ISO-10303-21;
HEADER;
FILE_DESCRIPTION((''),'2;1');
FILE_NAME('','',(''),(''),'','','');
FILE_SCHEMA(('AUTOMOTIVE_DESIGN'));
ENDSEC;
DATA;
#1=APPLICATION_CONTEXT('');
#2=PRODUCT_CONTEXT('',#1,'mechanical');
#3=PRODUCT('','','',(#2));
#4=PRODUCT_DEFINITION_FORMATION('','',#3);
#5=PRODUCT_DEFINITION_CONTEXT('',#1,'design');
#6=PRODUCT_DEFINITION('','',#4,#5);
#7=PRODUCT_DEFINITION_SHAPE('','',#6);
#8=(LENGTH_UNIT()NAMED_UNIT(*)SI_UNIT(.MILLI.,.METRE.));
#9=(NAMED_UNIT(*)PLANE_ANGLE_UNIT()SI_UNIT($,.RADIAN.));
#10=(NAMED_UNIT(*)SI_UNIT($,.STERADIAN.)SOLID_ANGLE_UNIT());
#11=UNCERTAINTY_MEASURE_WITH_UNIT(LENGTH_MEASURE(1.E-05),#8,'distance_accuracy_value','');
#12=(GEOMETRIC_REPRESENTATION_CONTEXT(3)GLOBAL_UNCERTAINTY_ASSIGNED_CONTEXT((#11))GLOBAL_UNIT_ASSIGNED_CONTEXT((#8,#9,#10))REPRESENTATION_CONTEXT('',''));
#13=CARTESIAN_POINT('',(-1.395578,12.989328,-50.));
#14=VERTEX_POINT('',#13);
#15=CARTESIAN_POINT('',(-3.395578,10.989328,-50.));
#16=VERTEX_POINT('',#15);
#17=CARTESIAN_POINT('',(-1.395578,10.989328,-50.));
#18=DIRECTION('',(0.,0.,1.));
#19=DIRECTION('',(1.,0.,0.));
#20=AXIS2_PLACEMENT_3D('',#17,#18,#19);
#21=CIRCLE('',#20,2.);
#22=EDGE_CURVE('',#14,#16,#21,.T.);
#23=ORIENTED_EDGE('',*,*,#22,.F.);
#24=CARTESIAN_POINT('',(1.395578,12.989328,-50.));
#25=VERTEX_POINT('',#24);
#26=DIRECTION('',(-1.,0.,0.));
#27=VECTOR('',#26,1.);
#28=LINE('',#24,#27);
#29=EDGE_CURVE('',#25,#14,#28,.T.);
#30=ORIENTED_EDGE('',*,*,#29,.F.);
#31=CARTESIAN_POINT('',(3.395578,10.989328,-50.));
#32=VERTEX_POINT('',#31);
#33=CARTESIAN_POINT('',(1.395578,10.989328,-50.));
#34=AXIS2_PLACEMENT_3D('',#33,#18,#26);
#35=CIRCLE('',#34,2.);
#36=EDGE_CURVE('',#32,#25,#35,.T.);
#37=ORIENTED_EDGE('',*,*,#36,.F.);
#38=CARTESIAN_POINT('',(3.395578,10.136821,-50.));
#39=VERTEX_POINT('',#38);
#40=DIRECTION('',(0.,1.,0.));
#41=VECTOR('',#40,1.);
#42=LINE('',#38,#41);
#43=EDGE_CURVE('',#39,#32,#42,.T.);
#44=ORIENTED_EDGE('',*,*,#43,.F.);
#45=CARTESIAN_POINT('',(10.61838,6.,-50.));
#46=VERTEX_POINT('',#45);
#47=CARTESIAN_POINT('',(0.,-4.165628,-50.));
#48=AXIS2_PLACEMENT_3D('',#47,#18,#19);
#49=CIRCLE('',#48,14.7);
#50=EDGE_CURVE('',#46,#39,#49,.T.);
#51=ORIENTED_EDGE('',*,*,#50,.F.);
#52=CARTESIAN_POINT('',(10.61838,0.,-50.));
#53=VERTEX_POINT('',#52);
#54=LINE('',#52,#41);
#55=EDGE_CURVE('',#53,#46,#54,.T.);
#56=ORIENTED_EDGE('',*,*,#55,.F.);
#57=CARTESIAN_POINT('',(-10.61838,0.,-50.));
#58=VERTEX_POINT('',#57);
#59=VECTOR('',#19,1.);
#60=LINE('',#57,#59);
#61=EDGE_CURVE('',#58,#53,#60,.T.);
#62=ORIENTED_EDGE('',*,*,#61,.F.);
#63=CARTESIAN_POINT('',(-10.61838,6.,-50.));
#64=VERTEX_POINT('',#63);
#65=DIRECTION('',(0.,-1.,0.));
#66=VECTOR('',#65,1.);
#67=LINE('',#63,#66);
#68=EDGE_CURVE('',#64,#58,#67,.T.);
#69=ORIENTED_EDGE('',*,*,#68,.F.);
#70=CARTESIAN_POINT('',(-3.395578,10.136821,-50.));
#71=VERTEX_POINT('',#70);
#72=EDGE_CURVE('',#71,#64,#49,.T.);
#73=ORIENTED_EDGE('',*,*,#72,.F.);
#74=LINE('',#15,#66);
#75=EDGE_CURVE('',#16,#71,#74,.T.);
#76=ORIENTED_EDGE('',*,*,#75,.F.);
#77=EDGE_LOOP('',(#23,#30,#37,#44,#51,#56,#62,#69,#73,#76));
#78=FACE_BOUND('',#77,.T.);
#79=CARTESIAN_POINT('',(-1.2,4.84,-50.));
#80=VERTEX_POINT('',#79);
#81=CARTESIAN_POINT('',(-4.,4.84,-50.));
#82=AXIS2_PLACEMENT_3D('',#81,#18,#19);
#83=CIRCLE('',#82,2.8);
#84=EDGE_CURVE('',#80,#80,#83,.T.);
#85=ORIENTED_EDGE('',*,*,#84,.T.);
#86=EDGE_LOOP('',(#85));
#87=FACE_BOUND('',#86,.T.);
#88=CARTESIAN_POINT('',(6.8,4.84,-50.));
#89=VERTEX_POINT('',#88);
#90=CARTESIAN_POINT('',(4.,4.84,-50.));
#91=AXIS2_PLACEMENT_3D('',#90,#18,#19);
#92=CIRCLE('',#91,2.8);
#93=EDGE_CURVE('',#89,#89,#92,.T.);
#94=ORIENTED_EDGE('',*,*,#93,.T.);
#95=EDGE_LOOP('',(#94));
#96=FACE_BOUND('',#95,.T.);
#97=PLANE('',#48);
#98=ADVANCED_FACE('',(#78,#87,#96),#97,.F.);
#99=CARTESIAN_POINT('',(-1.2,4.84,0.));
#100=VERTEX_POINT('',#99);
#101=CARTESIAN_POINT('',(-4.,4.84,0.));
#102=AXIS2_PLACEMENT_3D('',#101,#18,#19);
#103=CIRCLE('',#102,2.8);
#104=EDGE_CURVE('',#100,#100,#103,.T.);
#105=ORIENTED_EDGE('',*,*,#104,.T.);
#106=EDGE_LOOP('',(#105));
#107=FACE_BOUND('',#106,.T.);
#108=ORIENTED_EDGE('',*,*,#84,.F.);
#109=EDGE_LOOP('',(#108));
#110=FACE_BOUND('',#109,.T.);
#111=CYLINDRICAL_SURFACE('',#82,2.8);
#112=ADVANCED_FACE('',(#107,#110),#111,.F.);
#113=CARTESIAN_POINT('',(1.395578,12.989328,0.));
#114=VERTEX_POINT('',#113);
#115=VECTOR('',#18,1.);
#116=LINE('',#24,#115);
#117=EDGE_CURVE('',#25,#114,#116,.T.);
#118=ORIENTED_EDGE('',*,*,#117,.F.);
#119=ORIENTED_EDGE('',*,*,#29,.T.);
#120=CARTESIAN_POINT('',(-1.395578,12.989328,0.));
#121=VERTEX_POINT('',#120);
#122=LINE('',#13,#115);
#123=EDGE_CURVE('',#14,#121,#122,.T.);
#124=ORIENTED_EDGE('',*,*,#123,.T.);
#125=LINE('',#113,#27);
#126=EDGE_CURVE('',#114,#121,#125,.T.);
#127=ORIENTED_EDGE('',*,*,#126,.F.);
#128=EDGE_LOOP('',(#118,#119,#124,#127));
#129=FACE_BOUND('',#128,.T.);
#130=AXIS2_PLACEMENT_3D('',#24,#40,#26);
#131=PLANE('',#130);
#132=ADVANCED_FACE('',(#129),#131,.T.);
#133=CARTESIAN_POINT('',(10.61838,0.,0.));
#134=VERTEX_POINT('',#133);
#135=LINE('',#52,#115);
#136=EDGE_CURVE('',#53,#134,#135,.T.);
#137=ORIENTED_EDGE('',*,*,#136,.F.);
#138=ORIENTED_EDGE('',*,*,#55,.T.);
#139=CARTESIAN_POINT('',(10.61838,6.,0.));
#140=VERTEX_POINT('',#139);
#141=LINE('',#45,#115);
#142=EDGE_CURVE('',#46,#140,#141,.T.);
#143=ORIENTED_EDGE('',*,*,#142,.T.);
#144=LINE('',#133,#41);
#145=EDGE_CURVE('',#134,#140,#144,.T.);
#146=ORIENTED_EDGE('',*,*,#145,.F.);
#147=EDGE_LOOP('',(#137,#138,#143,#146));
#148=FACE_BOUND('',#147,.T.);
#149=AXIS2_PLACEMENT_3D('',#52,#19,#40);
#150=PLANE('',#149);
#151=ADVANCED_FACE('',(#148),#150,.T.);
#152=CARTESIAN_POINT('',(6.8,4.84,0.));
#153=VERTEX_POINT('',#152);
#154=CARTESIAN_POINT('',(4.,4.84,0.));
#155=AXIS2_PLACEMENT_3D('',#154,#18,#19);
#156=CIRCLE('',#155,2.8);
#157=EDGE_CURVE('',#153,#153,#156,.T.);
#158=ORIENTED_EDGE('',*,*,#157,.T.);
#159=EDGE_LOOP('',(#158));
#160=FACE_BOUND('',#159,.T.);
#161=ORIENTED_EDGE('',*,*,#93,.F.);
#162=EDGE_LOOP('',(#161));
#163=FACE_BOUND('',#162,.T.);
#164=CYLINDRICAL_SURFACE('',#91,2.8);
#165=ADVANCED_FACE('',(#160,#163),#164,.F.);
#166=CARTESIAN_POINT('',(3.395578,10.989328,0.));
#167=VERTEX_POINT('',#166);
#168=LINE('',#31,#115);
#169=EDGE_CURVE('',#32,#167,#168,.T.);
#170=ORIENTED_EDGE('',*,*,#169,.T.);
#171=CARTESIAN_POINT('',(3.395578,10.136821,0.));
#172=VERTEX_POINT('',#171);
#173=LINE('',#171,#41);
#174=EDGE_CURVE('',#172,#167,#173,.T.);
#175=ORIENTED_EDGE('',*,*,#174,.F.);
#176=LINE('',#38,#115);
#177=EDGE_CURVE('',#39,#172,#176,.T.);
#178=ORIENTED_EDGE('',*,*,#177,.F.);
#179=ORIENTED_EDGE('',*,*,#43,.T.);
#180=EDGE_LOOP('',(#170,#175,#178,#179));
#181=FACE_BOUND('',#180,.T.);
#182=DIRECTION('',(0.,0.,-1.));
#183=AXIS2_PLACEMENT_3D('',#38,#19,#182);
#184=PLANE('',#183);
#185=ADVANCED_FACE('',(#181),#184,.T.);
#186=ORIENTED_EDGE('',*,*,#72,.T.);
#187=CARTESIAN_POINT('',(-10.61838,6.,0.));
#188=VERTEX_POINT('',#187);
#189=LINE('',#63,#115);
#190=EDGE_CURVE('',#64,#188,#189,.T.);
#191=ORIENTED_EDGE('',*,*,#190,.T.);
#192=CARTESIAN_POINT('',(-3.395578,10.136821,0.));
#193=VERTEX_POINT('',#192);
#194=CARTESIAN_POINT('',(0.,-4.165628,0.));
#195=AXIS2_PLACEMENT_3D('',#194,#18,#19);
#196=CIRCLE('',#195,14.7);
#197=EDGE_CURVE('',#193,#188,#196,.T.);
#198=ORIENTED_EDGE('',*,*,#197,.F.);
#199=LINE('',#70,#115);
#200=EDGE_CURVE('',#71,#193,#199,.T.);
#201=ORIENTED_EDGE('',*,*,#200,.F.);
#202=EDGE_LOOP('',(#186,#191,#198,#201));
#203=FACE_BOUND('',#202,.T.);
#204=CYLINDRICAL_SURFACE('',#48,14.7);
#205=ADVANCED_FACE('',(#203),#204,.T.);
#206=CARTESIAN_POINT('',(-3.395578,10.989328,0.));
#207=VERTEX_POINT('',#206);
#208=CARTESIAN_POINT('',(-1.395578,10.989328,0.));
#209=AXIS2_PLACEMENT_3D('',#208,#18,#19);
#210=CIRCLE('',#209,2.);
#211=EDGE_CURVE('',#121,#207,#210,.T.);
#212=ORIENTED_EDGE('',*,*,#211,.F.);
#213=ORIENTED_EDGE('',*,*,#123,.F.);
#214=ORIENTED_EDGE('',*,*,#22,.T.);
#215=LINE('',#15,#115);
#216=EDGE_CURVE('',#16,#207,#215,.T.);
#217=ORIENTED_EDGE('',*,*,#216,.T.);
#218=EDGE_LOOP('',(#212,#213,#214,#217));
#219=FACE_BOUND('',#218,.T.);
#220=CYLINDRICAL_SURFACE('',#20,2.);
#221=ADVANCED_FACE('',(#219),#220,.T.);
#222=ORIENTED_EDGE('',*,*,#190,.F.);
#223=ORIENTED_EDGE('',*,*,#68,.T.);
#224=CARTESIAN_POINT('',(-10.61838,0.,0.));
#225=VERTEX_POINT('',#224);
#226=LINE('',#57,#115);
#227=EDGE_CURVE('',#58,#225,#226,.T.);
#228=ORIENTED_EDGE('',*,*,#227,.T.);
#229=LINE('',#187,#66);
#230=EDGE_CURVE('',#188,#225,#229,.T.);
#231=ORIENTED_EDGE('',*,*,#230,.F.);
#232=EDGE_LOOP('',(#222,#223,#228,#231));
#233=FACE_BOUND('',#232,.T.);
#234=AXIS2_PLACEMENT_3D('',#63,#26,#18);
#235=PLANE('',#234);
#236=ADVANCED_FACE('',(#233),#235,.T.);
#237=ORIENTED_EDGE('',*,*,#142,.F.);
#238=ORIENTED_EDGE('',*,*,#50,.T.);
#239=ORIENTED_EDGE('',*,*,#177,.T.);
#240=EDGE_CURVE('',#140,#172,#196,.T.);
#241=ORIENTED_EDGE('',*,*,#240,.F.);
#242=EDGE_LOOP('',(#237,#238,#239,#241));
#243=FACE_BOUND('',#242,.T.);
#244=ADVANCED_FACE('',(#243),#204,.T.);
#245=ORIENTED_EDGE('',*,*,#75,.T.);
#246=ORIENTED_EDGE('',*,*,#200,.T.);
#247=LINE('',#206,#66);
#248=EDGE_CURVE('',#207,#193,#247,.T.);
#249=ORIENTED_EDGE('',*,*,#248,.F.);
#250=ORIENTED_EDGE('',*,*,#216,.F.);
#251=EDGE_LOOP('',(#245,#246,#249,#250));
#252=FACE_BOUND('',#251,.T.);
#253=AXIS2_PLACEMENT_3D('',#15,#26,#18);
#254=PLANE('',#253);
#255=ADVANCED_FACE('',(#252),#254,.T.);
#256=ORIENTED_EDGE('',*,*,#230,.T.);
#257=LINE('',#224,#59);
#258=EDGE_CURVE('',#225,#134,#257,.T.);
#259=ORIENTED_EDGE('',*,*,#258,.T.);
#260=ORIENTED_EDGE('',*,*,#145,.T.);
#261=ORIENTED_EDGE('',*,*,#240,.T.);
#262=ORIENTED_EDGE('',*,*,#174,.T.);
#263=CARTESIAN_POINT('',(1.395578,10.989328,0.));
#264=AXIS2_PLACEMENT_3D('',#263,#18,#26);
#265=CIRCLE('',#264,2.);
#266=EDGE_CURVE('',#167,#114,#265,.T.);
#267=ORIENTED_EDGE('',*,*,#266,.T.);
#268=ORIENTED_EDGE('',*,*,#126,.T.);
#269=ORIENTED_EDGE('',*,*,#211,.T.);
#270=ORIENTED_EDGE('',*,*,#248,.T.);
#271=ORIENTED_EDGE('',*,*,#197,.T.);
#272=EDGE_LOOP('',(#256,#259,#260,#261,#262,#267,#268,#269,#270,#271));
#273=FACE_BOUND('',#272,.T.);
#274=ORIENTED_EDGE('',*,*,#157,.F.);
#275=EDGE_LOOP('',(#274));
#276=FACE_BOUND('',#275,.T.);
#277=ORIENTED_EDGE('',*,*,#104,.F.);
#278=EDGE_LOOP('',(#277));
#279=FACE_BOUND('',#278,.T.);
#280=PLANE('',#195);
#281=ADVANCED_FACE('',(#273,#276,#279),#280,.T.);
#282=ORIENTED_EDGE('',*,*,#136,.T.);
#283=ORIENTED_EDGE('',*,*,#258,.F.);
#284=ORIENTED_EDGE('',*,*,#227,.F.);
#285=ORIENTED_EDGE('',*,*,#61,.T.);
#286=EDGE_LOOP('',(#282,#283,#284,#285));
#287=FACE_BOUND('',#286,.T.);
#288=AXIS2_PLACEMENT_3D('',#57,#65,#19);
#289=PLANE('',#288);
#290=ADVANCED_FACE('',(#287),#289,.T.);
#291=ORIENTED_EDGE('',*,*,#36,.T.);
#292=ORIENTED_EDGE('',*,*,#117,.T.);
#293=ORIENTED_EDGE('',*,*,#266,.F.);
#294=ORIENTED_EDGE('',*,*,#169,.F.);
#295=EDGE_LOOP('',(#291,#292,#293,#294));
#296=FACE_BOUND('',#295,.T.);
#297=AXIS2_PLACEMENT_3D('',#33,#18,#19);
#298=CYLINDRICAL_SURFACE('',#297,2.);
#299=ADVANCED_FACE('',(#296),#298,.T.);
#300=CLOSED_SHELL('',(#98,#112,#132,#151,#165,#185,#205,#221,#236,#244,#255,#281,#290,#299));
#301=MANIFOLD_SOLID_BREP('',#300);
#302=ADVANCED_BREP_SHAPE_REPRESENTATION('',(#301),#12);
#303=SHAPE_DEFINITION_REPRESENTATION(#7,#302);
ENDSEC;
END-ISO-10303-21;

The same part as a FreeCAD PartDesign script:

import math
import FreeCAD as App
import Part
import Sketcher

V = App.Vector
Q = App.Units.Quantity

doc = App.newDocument("Part")
body = doc.addObject("PartDesign::Body", "Body")

sketch1 = body.newObject("Sketcher::SketchObject", "Sketch")
sketch1.AttachmentSupport = (doc.getObject("XY_Plane"), [""])
sketch1.MapMode = "FlatFace"
sketch1.addGeometry([
    Part.LineSegment(V(-10.6, 0, 0), V(10.6, 0, 0)),
    Part.LineSegment(V(10.6, 0, 0), V(10.6, 6, 0)),
    Part.ArcOfCircle(Part.Circle(V(0, -4.2, 0), V(0, 0, 1), 14.7), math.radians(44), math.radians(77)),
    Part.LineSegment(V(3.4, 10.1, 0), V(3.4, 11, 0)),
    Part.ArcOfCircle(Part.Circle(V(1.4, 11, 0), V(0, 0, 1), 2), math.radians(0), math.radians(90)),
    Part.LineSegment(V(1.4, 13, 0), V(-1.4, 13, 0)),
    Part.ArcOfCircle(Part.Circle(V(-1.4, 11, 0), V(0, 0, 1), 2), math.radians(90), math.radians(180)),
    Part.LineSegment(V(-3.4, 11, 0), V(-3.4, 10.1, 0)),
    Part.ArcOfCircle(Part.Circle(V(0, -4.2, 0), V(0, 0, 1), 14.7), math.radians(103), math.radians(136)),
    Part.LineSegment(V(-10.6, 6, 0), V(-10.6, 0, 0)),
], False)
sketch1.addConstraint([
    Sketcher.Constraint("Coincident", 0, 2, 1, 1),
    Sketcher.Constraint("Coincident", 1, 2, 2, 1),
    Sketcher.Constraint("Coincident", 2, 2, 3, 1),
    Sketcher.Constraint("Tangent", 3, 2, 4, 1),
    Sketcher.Constraint("Tangent", 4, 2, 5, 1),
    Sketcher.Constraint("Tangent", 5, 2, 6, 1),
    Sketcher.Constraint("Tangent", 6, 2, 7, 1),
    Sketcher.Constraint("Coincident", 7, 2, 8, 1),
    Sketcher.Constraint("Coincident", 8, 2, 9, 1),
    Sketcher.Constraint("Coincident", 9, 2, 0, 1),
    Sketcher.Constraint("Horizontal", 0),
    Sketcher.Constraint("Vertical", 1),
    Sketcher.Constraint("Vertical", 3),
    Sketcher.Constraint("Horizontal", 5),
    Sketcher.Constraint("Vertical", 7),
    Sketcher.Constraint("Vertical", 9),
    Sketcher.Constraint("Coincident", 8, 3, 2, 3),
    Sketcher.Constraint("Equal", 4, 6),
    Sketcher.Constraint("Equal", 2, 8),
    Sketcher.Constraint("Symmetric", 0, 2, 9, 2, -1, 1),
    Sketcher.Constraint("Symmetric", 2, 2, 7, 2, -2),
    Sketcher.Constraint("Radius", 4, Q("2 mm")),
    Sketcher.Constraint("Radius", 2, Q("14.7 mm")),
    Sketcher.Constraint("DistanceY", 1, 1, 1, 2, Q("6 mm")),
    Sketcher.Constraint("DistanceX", 0, 1, 0, 2, Q("21.236761 mm")),
    Sketcher.Constraint("DistanceX", 5, 2, 5, 1, Q("2.791155 mm")),
    Sketcher.Constraint("DistanceY", 3, 1, 3, 2, Q("0.852507 mm")),
])
pad1 = body.newObject("PartDesign::Pad", "Pad")
pad1.Profile = sketch1
pad1.Length = 50
pad1.Reversed = True

sketch2 = body.newObject("Sketcher::SketchObject", "Sketch001")
sketch2.AttachmentSupport = (doc.getObject("XY_Plane"), [""])
sketch2.MapMode = "FlatFace"
sketch2.addGeometry([
    Part.Circle(V(-4, 4.8, 0), V(0, 0, 1), 2.8),
    Part.Circle(V(4, 4.8, 0), V(0, 0, 1), 2.8),
], False)
sketch2.addConstraint([
    Sketcher.Constraint("Equal", 0, 1),
    Sketcher.Constraint("Symmetric", 0, 3, 1, 3, -2),
    Sketcher.Constraint("Diameter", 0, Q("5.6 mm")),
    Sketcher.Constraint("DistanceX", 0, 3, -1, 1, Q("4 mm")),
    Sketcher.Constraint("DistanceY", -1, 1, 0, 3, Q("4.84 mm")),
])
pocket1 = body.newObject("PartDesign::Pocket", "Pocket")
pocket1.Profile = sketch2
pocket1.Type = "ThroughAll"

doc.recompute()
